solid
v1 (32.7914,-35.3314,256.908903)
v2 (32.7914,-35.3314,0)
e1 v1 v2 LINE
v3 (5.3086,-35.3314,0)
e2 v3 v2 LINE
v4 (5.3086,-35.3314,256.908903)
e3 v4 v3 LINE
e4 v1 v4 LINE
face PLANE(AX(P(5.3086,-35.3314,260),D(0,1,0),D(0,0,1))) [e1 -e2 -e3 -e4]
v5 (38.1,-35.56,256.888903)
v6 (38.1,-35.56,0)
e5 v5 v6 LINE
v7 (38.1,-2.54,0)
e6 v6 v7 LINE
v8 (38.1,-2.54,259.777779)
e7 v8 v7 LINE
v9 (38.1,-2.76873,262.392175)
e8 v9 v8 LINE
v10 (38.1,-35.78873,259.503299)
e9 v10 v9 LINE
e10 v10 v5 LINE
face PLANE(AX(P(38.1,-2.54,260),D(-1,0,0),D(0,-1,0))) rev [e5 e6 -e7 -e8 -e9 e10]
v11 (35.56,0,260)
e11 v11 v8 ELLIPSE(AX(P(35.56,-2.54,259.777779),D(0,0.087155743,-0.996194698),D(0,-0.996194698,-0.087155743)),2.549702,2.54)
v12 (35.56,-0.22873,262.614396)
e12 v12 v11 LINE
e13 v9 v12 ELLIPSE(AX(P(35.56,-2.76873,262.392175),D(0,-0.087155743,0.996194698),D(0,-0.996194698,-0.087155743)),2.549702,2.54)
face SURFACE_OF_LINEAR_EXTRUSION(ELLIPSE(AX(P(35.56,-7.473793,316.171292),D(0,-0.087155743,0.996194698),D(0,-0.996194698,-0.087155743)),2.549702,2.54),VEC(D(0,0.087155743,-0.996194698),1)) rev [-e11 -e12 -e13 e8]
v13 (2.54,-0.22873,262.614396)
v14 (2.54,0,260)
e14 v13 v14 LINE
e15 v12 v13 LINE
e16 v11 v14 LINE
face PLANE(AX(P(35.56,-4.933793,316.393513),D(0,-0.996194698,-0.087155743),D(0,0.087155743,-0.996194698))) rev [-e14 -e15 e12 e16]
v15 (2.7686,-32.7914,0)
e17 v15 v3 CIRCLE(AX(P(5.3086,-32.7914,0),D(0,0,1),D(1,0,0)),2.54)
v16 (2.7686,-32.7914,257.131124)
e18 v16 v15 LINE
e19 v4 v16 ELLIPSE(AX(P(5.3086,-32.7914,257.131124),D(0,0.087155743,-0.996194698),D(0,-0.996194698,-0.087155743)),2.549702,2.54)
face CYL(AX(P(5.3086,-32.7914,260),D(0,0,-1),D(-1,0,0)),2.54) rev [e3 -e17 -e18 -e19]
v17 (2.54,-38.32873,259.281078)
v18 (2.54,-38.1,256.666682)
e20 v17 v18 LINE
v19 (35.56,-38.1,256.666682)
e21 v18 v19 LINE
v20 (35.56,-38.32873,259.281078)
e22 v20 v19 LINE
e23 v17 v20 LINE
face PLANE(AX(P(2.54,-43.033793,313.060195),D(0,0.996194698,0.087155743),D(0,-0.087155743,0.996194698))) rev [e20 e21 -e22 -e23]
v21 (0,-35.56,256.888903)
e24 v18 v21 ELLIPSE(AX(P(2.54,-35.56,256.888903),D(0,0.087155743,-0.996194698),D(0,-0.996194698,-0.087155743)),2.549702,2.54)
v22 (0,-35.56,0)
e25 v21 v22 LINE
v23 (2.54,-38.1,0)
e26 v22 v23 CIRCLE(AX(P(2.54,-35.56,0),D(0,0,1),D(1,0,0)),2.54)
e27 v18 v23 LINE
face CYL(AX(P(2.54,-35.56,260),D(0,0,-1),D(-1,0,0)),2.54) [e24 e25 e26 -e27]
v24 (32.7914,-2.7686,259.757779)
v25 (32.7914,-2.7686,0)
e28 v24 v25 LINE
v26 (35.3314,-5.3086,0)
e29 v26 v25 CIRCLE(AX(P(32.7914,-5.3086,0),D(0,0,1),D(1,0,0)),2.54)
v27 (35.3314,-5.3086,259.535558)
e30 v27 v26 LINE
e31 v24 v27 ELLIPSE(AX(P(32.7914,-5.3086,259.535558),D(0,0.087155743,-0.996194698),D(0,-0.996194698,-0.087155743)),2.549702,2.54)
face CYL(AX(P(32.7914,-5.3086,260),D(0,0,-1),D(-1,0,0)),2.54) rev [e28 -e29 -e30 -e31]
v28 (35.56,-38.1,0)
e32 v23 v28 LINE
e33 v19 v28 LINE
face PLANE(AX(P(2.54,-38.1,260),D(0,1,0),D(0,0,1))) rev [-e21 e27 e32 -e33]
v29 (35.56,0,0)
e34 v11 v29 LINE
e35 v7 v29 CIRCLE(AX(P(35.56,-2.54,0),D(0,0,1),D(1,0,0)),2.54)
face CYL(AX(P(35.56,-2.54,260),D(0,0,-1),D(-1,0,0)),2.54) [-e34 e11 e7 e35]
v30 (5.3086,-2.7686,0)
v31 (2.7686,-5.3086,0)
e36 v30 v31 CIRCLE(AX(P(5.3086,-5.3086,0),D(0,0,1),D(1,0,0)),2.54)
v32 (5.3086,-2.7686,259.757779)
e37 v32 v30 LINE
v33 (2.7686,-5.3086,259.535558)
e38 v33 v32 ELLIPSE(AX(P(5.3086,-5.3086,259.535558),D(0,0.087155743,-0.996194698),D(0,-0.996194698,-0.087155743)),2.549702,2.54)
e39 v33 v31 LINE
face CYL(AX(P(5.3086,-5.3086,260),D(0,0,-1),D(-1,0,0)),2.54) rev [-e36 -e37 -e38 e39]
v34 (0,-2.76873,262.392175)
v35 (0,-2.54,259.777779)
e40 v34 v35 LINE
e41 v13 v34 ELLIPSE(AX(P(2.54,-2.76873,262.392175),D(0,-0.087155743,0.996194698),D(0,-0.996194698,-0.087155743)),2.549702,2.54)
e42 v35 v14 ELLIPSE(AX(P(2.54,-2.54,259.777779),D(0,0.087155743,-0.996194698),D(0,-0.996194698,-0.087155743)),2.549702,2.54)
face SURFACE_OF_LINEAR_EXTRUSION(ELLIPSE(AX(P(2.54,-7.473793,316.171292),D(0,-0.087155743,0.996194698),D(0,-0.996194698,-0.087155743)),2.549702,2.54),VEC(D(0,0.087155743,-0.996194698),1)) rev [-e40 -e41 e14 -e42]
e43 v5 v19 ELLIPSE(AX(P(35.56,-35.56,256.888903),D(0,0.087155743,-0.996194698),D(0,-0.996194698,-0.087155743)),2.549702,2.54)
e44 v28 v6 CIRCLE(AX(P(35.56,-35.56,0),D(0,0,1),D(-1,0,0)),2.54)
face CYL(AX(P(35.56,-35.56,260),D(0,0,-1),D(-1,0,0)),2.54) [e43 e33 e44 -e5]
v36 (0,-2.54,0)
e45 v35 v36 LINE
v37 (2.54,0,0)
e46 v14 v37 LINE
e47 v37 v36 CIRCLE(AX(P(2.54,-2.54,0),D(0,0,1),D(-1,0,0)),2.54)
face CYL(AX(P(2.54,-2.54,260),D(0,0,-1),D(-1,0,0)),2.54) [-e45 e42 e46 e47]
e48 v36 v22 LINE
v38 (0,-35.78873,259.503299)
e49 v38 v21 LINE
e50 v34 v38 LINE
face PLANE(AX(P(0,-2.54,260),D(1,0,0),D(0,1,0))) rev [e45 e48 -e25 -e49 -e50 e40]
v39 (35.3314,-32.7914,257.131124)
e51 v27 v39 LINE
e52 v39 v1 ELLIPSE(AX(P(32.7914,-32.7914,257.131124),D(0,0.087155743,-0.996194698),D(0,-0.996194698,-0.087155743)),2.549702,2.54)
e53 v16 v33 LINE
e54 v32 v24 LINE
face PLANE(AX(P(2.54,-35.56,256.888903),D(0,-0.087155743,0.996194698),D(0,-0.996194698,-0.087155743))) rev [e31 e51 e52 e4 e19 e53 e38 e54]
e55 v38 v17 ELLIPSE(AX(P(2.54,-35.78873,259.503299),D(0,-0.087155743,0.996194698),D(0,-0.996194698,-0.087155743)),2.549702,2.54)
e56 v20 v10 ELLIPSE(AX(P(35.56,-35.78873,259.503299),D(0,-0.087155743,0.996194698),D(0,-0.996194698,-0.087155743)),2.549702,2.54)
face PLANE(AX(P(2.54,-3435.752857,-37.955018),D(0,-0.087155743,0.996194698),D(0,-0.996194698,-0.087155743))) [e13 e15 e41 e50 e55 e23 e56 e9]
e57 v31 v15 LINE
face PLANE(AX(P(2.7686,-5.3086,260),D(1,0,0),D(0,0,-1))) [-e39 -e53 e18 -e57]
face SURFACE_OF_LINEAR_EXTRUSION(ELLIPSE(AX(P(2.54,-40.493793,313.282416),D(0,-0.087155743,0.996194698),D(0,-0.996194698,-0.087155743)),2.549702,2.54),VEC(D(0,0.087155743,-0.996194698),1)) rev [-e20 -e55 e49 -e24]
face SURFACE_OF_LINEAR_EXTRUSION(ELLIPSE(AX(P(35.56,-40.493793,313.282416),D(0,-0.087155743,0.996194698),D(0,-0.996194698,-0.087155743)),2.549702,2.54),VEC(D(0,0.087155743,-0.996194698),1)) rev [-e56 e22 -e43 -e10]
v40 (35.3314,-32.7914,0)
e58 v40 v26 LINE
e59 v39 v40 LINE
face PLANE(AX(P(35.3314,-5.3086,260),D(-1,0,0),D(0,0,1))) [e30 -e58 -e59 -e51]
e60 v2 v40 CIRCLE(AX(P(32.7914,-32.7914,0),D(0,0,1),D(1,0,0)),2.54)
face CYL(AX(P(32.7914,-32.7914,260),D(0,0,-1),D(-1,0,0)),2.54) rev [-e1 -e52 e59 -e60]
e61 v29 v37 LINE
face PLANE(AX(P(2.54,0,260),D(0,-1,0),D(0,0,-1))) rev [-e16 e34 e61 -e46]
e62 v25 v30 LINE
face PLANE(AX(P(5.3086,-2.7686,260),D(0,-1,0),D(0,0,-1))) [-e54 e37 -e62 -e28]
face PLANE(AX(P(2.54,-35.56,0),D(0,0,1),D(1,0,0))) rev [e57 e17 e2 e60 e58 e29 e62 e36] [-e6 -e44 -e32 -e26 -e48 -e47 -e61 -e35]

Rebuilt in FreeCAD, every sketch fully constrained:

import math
import FreeCAD as App
import Part
import Sketcher

V = App.Vector
Q = App.Units.Quantity

doc = App.newDocument("Part")
body = doc.addObject("PartDesign::Body", "Body")

sketch1 = body.newObject("Sketcher::SketchObject", "Sketch")
sketch1.AttachmentSupport = (doc.getObject("XY_Plane"), [""])
sketch1.MapMode = "FlatFace"
sketch1.addGeometry([
    Part.LineSegment(V(35.6, 0, 0), V(2.5, 0, 0)),
    Part.ArcOfCircle(Part.Circle(V(2.5, -2.5, 0), V(0, 0, 1), 2.5), math.radians(90), math.radians(180)),
    Part.LineSegment(V(0, -2.5, 0), V(0, -35.6, 0)),
    Part.ArcOfCircle(Part.Circle(V(2.5, -35.6, 0), V(0, 0, 1), 2.5), math.radians(-180), math.radians(-90)),
    Part.LineSegment(V(2.5, -38.1, 0), V(35.6, -38.1, 0)),
    Part.ArcOfCircle(Part.Circle(V(35.6, -35.6, 0), V(0, 0, 1), 2.5), math.radians(-90), math.radians(0)),
    Part.LineSegment(V(38.1, -35.6, 0), V(38.1, -2.5, 0)),
    Part.ArcOfCircle(Part.Circle(V(35.6, -2.5, 0), V(0, 0, 1), 2.5), math.radians(0), math.radians(90)),
    Part.LineSegment(V(5.3, -2.8, 0), V(32.8, -2.8, 0)),
    Part.ArcOfCircle(Part.Circle(V(32.8, -5.3, 0), V(0, 0, 1), 2.5), math.radians(0), math.radians(90)),
    Part.LineSegment(V(35.3, -5.3, 0), V(35.3, -32.8, 0)),
    Part.ArcOfCircle(Part.Circle(V(32.8, -32.8, 0), V(0, 0, 1), 2.5), math.radians(-90), math.radians(0)),
    Part.LineSegment(V(32.8, -35.3, 0), V(5.3, -35.3, 0)),
    Part.ArcOfCircle(Part.Circle(V(5.3, -32.8, 0), V(0, 0, 1), 2.5), math.radians(-180), math.radians(-90)),
    Part.LineSegment(V(2.8, -32.8, 0), V(2.8, -5.3, 0)),
    Part.ArcOfCircle(Part.Circle(V(5.3, -5.3, 0), V(0, 0, 1), 2.5), math.radians(90), math.radians(180)),
], False)
sketch1.addConstraint([
    Sketcher.Constraint("Tangent", 0, 2, 1, 1),
    Sketcher.Constraint("Tangent", 1, 2, 2, 1),
    Sketcher.Constraint("Tangent", 2, 2, 3, 1),
    Sketcher.Constraint("Tangent", 3, 2, 4, 1),
    Sketcher.Constraint("Tangent", 4, 2, 5, 1),
    Sketcher.Constraint("Tangent", 5, 2, 6, 1),
    Sketcher.Constraint("Tangent", 6, 2, 7, 1),
    Sketcher.Constraint("Tangent", 7, 2, 0, 1),
    Sketcher.Constraint("Tangent", 8, 2, 9, 2),
    Sketcher.Constraint("Tangent", 9, 1, 10, 1),
    Sketcher.Constraint("Tangent", 10, 2, 11, 2),
    Sketcher.Constraint("Tangent", 11, 1, 12, 1),
    Sketcher.Constraint("Tangent", 12, 2, 13, 2),
    Sketcher.Constraint("Tangent", 13, 1, 14, 1),
    Sketcher.Constraint("Tangent", 14, 2, 15, 2),
    Sketcher.Constraint("Tangent", 15, 1, 8, 1),
    Sketcher.Constraint("Horizontal", 0),
    Sketcher.Constraint("Vertical", 2),
    Sketcher.Constraint("Horizontal", 4),
    Sketcher.Constraint("Vertical", 6),
    Sketcher.Constraint("Horizontal", 8),
    Sketcher.Constraint("Vertical", 10),
    Sketcher.Constraint("Horizontal", 12),
    Sketcher.Constraint("Vertical", 14),
    Sketcher.Constraint("Equal", 1, 3),
    Sketcher.Constraint("Equal", 3, 5),
    Sketcher.Constraint("Equal", 5, 7),
    Sketcher.Constraint("Equal", 7, 9),
    Sketcher.Constraint("Equal", 9, 11),
    Sketcher.Constraint("Equal", 11, 13),
    Sketcher.Constraint("Equal", 13, 15),
    Sketcher.Constraint("PointOnObject", 0, 2, -1),
    Sketcher.Constraint("PointOnObject", 1, 2, -2),
    Sketcher.Constraint("Equal", 4, 2),
    Sketcher.Constraint("Equal", 12, 10),
    Sketcher.Constraint("Radius", 1, Q("0.1 in")),
    Sketcher.Constraint("DistanceX", 0, 2, 0, 1, Q("1.3 in")),
    Sketcher.Constraint("DistanceX", 8, 1, 8, 2, Q("1.082 in")),
    Sketcher.Constraint("DistanceX", -1, 1, 9, 3, Q("1.291 in")),
    Sketcher.Constraint("DistanceY", 9, 3, -1, 1, Q("0.209 in")),
])
pad1 = body.newObject("PartDesign::Pad", "Pad")
pad1.Profile = sketch1
pad1.Length = 260

sketch2 = body.newObject("Sketcher::SketchObject", "Sketch001")
sketch2.AttachmentSupport = (doc.getObject("YZ_Plane"), [""])
sketch2.MapMode = "FlatFace"
sketch2.AttachmentOffset = App.Placement(V(0, 0, 1.5 * 25.4), App.Rotation())
sketch2.addGeometry([
    Part.LineSegment(V(-38.1, 256.7, 0), V(0, 260, 0)),
    Part.LineSegment(V(0, 260, 0), V(-38.1, 260, 0)),
    Part.LineSegment(V(-38.1, 260, 0), V(-38.1, 256.7, 0)),
], False)
sketch2.addConstraint([
    Sketcher.Constraint("Coincident", 0, 2, 1, 1),
    Sketcher.Constraint("Coincident", 1, 2, 2, 1),
    Sketcher.Constraint("Coincident", 2, 2, 0, 1),
    Sketcher.Constraint("Horizontal", 1),
    Sketcher.Constraint("Vertical", 2),
    Sketcher.Constraint("PointOnObject", 0, 2, -2),
    Sketcher.Constraint("DistanceX", 1, 2, 1, 1, Q("1.5 in")),
    Sketcher.Constraint("Angle", 0, Q("5 deg")),
    Sketcher.Constraint("DistanceY", -1, 1, 0, 2, 260.0),
])
pocket1 = body.newObject("PartDesign::Pocket", "Pocket")
pocket1.Profile = sketch2
pocket1.Type = "ThroughAll"

sketch3 = body.newObject("Sketcher::SketchObject", "Sketch002")
sketch3.Placement = App.Placement(V(0, -22.574263, 258.025008), App.Rotation(V(1, 0, 0), V(0, 0.996194698, 0.087155743), V(0, -0.087155743, 0.996194698), "ZXY"))
sketch3.addGeometry([
    Part.LineSegment(V(2.54, -15.585043, 0), V(35.56, -15.585043, 0)),
    Part.BSplineCurve([V(35.56, -15.585043, 0), V(38.1, -15.585043, 0), V(38.1, -13.03534, 0)], [3, 3], [0, 1.570796327], False, 2, [1, 0.707106781, 1], False),
    Part.LineSegment(V(38.1, -13.03534, 0), V(38.1, 20.110791, 0)),
    Part.BSplineCurve([V(38.1, 20.110791, 0), V(38.1, 22.660493, 0), V(35.56, 22.660493, 0)], [3, 3], [1.570796327, 3.141592654], False, 2, [1, 0.707106781, 1], False),
    Part.LineSegment(V(35.56, 22.660493, 0), V(2.54, 22.660493, 0)),
    Part.BSplineCurve([V(2.54, 22.660493, 0), V(0, 22.660493, 0), V(0, 20.110791, 0)], [3, 3], [3.141592654, 4.71238898], False, 2, [1, 0.707106781, 1], False),
    Part.LineSegment(V(0, 20.110791, 0), V(0, -13.03534, 0)),
    Part.BSplineCurve([V(0, -13.03534, 0), V(0, -15.585043, 0), V(2.54, -15.585043, 0)], [3, 3], [4.71238898, 6.283185307], False, 2, [1, 0.707106781, 1], False),
], False)
sketch3.addConstraint([
    Sketcher.Constraint("Block", 1),
    Sketcher.Constraint("Block", 3),
    Sketcher.Constraint("Block", 5),
    Sketcher.Constraint("Block", 7),
    Sketcher.Constraint("Coincident", 0, 2, 1, 1),
    Sketcher.Constraint("Coincident", 1, 2, 2, 1),
    Sketcher.Constraint("Coincident", 2, 2, 3, 1),
    Sketcher.Constraint("Coincident", 3, 2, 4, 1),
    Sketcher.Constraint("Coincident", 4, 2, 5, 1),
    Sketcher.Constraint("Coincident", 5, 2, 6, 1),
    Sketcher.Constraint("Coincident", 6, 2, 7, 1),
    Sketcher.Constraint("Coincident", 7, 2, 0, 1),
])
pad2 = body.newObject("PartDesign::Pad", "Pad001")
pad2.Profile = sketch3
pad2.Length = 2.624383

doc.recompute()
